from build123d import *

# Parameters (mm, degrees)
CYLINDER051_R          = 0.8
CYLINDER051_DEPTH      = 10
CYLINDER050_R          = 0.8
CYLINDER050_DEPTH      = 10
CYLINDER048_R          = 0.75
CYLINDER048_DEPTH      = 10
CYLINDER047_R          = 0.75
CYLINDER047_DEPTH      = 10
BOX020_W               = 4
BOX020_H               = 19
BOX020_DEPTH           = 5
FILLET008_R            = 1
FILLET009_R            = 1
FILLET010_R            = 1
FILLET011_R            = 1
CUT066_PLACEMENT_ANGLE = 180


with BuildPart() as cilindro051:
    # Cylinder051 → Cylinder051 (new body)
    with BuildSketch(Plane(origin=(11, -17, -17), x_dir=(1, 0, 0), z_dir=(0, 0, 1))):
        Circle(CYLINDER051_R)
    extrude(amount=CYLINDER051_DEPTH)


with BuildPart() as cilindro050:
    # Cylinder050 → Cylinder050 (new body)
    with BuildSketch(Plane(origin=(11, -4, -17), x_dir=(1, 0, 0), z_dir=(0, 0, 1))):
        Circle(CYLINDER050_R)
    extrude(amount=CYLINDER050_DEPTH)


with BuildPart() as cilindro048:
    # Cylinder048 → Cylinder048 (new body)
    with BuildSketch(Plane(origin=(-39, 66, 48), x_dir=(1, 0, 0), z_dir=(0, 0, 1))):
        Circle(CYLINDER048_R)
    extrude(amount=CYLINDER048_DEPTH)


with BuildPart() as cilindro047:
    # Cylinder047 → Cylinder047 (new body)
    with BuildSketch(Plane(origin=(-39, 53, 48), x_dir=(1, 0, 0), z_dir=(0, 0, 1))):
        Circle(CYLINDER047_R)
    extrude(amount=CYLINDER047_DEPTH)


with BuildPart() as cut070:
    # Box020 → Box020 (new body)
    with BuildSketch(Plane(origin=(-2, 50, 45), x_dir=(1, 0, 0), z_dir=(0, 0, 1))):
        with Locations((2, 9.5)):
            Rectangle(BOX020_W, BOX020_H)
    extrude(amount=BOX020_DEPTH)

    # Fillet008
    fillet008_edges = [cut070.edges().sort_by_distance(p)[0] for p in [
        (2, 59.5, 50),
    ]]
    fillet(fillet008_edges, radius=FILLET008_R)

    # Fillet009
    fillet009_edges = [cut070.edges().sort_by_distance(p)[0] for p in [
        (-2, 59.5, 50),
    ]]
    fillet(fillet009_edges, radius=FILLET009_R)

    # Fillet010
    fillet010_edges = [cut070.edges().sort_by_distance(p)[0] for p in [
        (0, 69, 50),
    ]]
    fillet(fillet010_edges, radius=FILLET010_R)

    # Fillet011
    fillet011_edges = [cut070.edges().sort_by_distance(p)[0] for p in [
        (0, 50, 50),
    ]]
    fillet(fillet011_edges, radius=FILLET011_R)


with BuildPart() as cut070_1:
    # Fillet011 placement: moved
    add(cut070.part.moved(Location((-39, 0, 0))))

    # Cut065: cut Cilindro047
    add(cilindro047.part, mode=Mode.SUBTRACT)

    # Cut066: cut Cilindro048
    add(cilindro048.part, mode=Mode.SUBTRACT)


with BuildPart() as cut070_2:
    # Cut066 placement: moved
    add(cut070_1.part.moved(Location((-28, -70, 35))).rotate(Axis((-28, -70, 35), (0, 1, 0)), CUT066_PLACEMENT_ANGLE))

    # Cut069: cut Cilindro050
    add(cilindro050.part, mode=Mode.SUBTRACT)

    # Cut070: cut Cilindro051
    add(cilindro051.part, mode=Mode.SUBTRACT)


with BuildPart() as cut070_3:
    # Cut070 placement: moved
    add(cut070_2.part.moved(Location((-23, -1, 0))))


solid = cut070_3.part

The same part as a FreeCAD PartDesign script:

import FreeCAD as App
import Part
import Sketcher
from FreeCAD import Vector


def edges_at(feature, points):
    """Names of the edges that pass closest to the given points."""
    edges = feature.Shape.Edges
    near = lambda p: min(range(len(edges)), key=lambda i: edges[i].distToShape(Part.Vertex(*p))[0])
    return sorted({f"Edge{near(p) + 1}" for p in points})

doc = App.newDocument("Part")
body = doc.addObject("PartDesign::Body", "Body")

sketch1 = doc.addObject("Sketcher::SketchObject", "Sketch")
body.addObject(sketch1)
sketch1.AttachmentSupport = (doc.XY_Plane, [""])
sketch1.MapMode = "FlatFace"
sketch1.AttachmentOffset = App.Placement(Vector(0, 0, -17), App.Rotation())
sketch1.addGeometry(Part.Circle(Vector(11, -17, 0), Vector(0, 0, 1), 0.8), False)
sketch1.addConstraint(Sketcher.Constraint("Diameter", 0, 1.6))
sketch1.addConstraint(Sketcher.Constraint("DistanceX", -1, 1, 0, 3, 11.0))
sketch1.addConstraint(Sketcher.Constraint("DistanceY", 0, 3, -1, 1, 17.0))
pad1 = doc.addObject("PartDesign::Pad", "Pad")
body.addObject(pad1)
pad1.Profile = sketch1
pad1.Length = 10
body2 = doc.addObject("PartDesign::Body", "Body001")

sketch2 = doc.addObject("Sketcher::SketchObject", "Sketch001")
body2.addObject(sketch2)
sketch2.AttachmentSupport = (doc.getObject("XY_Plane001"), [""])
sketch2.MapMode = "FlatFace"
sketch2.AttachmentOffset = App.Placement(Vector(0, 0, -17), App.Rotation())
sketch2.addGeometry(Part.Circle(Vector(11, -4, 0), Vector(0, 0, 1), 0.8), False)
sketch2.addConstraint(Sketcher.Constraint("Diameter", 0, 1.6))
sketch2.addConstraint(Sketcher.Constraint("DistanceX", -1, 1, 0, 3, 11.0))
sketch2.addConstraint(Sketcher.Constraint("DistanceY", 0, 3, -1, 1, 4.0))
pad2 = doc.addObject("PartDesign::Pad", "Pad001")
body2.addObject(pad2)
pad2.Profile = sketch2
pad2.Length = 10
body3 = doc.addObject("PartDesign::Body", "Body002")

sketch3 = doc.addObject("Sketcher::SketchObject", "Sketch002")
body3.addObject(sketch3)
sketch3.AttachmentSupport = (doc.getObject("XY_Plane002"), [""])
sketch3.MapMode = "FlatFace"
sketch3.AttachmentOffset = App.Placement(Vector(0, 0, 48), App.Rotation())
sketch3.addGeometry(Part.Circle(Vector(-39, 66, 0), Vector(0, 0, 1), 0.8), False)
sketch3.addConstraint(Sketcher.Constraint("Diameter", 0, 1.5))
sketch3.addConstraint(Sketcher.Constraint("DistanceX", 0, 3, -1, 1, 39.0))
sketch3.addConstraint(Sketcher.Constraint("DistanceY", -1, 1, 0, 3, 66.0))
pad3 = doc.addObject("PartDesign::Pad", "Pad002")
body3.addObject(pad3)
pad3.Profile = sketch3
pad3.Length = 10
body4 = doc.addObject("PartDesign::Body", "Body003")

sketch4 = doc.addObject("Sketcher::SketchObject", "Sketch003")
body4.addObject(sketch4)
sketch4.AttachmentSupport = (doc.getObject("XY_Plane003"), [""])
sketch4.MapMode = "FlatFace"
sketch4.AttachmentOffset = App.Placement(Vector(0, 0, 48), App.Rotation())
sketch4.addGeometry(Part.Circle(Vector(-39, 53, 0), Vector(0, 0, 1), 0.8), False)
sketch4.addConstraint(Sketcher.Constraint("Diameter", 0, 1.5))
sketch4.addConstraint(Sketcher.Constraint("DistanceX", 0, 3, -1, 1, 39.0))
sketch4.addConstraint(Sketcher.Constraint("DistanceY", -1, 1, 0, 3, 53.0))
pad4 = doc.addObject("PartDesign::Pad", "Pad003")
body4.addObject(pad4)
pad4.Profile = sketch4
pad4.Length = 10
body5 = doc.addObject("PartDesign::Body", "Body004")

sketch5 = doc.addObject("Sketcher::SketchObject", "Sketch004")
body5.addObject(sketch5)
sketch5.AttachmentSupport = (doc.getObject("XY_Plane004"), [""])
sketch5.MapMode = "FlatFace"
sketch5.AttachmentOffset = App.Placement(Vector(0, 0, 45), App.Rotation())
sketch5.addGeometry(Part.LineSegment(Vector(-2, 69, 0), Vector(-2, 50, 0)), False)
sketch5.addGeometry(Part.LineSegment(Vector(-2, 50, 0), Vector(2, 50, 0)), False)
sketch5.addGeometry(Part.LineSegment(Vector(2, 50, 0), Vector(2, 69, 0)), False)
sketch5.addGeometry(Part.LineSegment(Vector(2, 69, 0), Vector(-2, 69, 0)), False)
sketch5.addConstraint(Sketcher.Constraint("Coincident", 0, 2, 1, 1))
sketch5.addConstraint(Sketcher.Constraint("Coincident", 1, 2, 2, 1))
sketch5.addConstraint(Sketcher.Constraint("Coincident", 2, 2, 3, 1))
sketch5.addConstraint(Sketcher.Constraint("Coincident", 3, 2, 0, 1))
sketch5.addConstraint(Sketcher.Constraint("Vertical", 0))
sketch5.addConstraint(Sketcher.Constraint("Horizontal", 1))
sketch5.addConstraint(Sketcher.Constraint("Vertical", 2))
sketch5.addConstraint(Sketcher.Constraint("Horizontal", 3))
sketch5.addConstraint(Sketcher.Constraint("DistanceX", 1, 1, 1, 2, 4.0))
sketch5.addConstraint(Sketcher.Constraint("DistanceY", 0, 2, 0, 1, 19.0))
sketch5.addConstraint(Sketcher.Constraint("DistanceX", 0, 2, -1, 1, 2.0))
sketch5.addConstraint(Sketcher.Constraint("DistanceY", -1, 1, 0, 2, 50.0))
pad5 = doc.addObject("PartDesign::Pad", "Pad004")
body5.addObject(pad5)
pad5.Profile = sketch5
pad5.Length = 5
doc.recompute()

fillet = doc.addObject("PartDesign::Fillet", "Fillet")
body5.addObject(fillet)
fillet.Base = (pad5, edges_at(pad5, [(2, 59.5, 50)]))
fillet.Radius = 1
doc.recompute()

fillet2 = doc.addObject("PartDesign::Fillet", "Fillet001")
body5.addObject(fillet2)
fillet2.Base = (fillet, edges_at(fillet, [(-2, 59.5, 50)]))
fillet2.Radius = 1
doc.recompute()

fillet3 = doc.addObject("PartDesign::Fillet", "Fillet002")
body5.addObject(fillet3)
fillet3.Base = (fillet2, edges_at(fillet2, [(0, 69, 50)]))
fillet3.Radius = 1
doc.recompute()

fillet4 = doc.addObject("PartDesign::Fillet", "Fillet003")
body5.addObject(fillet4)
fillet4.Base = (fillet3, edges_at(fillet3, [(0, 50, 50)]))
fillet4.Radius = 1
body6 = doc.addObject("PartDesign::Body", "Body005")
doc.recompute()

body5.Placement = App.Placement(Vector(-39, 0, 0), App.Rotation(Vector(0, 0, 1), 0))
boolean = doc.addObject("PartDesign::Boolean", "Boolean")
body6.addObject(boolean)
boolean.Type = "Fuse"
boolean.addObjects([body5])
doc.recompute()

boolean2 = doc.addObject("PartDesign::Boolean", "Boolean001")
body6.addObject(boolean2)
boolean2.Type = "Cut"
boolean2.addObjects([body4])
doc.recompute()

boolean3 = doc.addObject("PartDesign::Boolean", "Boolean002")
body6.addObject(boolean3)
boolean3.Type = "Cut"
boolean3.addObjects([body3])
body7 = doc.addObject("PartDesign::Body", "Body006")
doc.recompute()

body6.Placement = App.Placement(Vector(-28, -70, 35), App.Rotation(Vector(0, 1, 0), 180))
boolean4 = doc.addObject("PartDesign::Boolean", "Boolean003")
body7.addObject(boolean4)
boolean4.Type = "Fuse"
boolean4.addObjects([body6])
doc.recompute()

boolean5 = doc.addObject("PartDesign::Boolean", "Boolean004")
body7.addObject(boolean5)
boolean5.Type = "Cut"
boolean5.addObjects([body2])
doc.recompute()

boolean6 = doc.addObject("PartDesign::Boolean", "Boolean005")
body7.addObject(boolean6)
boolean6.Type = "Cut"
boolean6.addObjects([body])
body8 = doc.addObject("PartDesign::Body", "Body007")
doc.recompute()

body7.Placement = App.Placement(Vector(-23, -1, 0), App.Rotation(Vector(0, 0, 1), 0))
boolean7 = doc.addObject("PartDesign::Boolean", "Boolean006")
body8.addObject(boolean7)
boolean7.Type = "Fuse"
boolean7.addObjects([body7])

doc.recompute()
